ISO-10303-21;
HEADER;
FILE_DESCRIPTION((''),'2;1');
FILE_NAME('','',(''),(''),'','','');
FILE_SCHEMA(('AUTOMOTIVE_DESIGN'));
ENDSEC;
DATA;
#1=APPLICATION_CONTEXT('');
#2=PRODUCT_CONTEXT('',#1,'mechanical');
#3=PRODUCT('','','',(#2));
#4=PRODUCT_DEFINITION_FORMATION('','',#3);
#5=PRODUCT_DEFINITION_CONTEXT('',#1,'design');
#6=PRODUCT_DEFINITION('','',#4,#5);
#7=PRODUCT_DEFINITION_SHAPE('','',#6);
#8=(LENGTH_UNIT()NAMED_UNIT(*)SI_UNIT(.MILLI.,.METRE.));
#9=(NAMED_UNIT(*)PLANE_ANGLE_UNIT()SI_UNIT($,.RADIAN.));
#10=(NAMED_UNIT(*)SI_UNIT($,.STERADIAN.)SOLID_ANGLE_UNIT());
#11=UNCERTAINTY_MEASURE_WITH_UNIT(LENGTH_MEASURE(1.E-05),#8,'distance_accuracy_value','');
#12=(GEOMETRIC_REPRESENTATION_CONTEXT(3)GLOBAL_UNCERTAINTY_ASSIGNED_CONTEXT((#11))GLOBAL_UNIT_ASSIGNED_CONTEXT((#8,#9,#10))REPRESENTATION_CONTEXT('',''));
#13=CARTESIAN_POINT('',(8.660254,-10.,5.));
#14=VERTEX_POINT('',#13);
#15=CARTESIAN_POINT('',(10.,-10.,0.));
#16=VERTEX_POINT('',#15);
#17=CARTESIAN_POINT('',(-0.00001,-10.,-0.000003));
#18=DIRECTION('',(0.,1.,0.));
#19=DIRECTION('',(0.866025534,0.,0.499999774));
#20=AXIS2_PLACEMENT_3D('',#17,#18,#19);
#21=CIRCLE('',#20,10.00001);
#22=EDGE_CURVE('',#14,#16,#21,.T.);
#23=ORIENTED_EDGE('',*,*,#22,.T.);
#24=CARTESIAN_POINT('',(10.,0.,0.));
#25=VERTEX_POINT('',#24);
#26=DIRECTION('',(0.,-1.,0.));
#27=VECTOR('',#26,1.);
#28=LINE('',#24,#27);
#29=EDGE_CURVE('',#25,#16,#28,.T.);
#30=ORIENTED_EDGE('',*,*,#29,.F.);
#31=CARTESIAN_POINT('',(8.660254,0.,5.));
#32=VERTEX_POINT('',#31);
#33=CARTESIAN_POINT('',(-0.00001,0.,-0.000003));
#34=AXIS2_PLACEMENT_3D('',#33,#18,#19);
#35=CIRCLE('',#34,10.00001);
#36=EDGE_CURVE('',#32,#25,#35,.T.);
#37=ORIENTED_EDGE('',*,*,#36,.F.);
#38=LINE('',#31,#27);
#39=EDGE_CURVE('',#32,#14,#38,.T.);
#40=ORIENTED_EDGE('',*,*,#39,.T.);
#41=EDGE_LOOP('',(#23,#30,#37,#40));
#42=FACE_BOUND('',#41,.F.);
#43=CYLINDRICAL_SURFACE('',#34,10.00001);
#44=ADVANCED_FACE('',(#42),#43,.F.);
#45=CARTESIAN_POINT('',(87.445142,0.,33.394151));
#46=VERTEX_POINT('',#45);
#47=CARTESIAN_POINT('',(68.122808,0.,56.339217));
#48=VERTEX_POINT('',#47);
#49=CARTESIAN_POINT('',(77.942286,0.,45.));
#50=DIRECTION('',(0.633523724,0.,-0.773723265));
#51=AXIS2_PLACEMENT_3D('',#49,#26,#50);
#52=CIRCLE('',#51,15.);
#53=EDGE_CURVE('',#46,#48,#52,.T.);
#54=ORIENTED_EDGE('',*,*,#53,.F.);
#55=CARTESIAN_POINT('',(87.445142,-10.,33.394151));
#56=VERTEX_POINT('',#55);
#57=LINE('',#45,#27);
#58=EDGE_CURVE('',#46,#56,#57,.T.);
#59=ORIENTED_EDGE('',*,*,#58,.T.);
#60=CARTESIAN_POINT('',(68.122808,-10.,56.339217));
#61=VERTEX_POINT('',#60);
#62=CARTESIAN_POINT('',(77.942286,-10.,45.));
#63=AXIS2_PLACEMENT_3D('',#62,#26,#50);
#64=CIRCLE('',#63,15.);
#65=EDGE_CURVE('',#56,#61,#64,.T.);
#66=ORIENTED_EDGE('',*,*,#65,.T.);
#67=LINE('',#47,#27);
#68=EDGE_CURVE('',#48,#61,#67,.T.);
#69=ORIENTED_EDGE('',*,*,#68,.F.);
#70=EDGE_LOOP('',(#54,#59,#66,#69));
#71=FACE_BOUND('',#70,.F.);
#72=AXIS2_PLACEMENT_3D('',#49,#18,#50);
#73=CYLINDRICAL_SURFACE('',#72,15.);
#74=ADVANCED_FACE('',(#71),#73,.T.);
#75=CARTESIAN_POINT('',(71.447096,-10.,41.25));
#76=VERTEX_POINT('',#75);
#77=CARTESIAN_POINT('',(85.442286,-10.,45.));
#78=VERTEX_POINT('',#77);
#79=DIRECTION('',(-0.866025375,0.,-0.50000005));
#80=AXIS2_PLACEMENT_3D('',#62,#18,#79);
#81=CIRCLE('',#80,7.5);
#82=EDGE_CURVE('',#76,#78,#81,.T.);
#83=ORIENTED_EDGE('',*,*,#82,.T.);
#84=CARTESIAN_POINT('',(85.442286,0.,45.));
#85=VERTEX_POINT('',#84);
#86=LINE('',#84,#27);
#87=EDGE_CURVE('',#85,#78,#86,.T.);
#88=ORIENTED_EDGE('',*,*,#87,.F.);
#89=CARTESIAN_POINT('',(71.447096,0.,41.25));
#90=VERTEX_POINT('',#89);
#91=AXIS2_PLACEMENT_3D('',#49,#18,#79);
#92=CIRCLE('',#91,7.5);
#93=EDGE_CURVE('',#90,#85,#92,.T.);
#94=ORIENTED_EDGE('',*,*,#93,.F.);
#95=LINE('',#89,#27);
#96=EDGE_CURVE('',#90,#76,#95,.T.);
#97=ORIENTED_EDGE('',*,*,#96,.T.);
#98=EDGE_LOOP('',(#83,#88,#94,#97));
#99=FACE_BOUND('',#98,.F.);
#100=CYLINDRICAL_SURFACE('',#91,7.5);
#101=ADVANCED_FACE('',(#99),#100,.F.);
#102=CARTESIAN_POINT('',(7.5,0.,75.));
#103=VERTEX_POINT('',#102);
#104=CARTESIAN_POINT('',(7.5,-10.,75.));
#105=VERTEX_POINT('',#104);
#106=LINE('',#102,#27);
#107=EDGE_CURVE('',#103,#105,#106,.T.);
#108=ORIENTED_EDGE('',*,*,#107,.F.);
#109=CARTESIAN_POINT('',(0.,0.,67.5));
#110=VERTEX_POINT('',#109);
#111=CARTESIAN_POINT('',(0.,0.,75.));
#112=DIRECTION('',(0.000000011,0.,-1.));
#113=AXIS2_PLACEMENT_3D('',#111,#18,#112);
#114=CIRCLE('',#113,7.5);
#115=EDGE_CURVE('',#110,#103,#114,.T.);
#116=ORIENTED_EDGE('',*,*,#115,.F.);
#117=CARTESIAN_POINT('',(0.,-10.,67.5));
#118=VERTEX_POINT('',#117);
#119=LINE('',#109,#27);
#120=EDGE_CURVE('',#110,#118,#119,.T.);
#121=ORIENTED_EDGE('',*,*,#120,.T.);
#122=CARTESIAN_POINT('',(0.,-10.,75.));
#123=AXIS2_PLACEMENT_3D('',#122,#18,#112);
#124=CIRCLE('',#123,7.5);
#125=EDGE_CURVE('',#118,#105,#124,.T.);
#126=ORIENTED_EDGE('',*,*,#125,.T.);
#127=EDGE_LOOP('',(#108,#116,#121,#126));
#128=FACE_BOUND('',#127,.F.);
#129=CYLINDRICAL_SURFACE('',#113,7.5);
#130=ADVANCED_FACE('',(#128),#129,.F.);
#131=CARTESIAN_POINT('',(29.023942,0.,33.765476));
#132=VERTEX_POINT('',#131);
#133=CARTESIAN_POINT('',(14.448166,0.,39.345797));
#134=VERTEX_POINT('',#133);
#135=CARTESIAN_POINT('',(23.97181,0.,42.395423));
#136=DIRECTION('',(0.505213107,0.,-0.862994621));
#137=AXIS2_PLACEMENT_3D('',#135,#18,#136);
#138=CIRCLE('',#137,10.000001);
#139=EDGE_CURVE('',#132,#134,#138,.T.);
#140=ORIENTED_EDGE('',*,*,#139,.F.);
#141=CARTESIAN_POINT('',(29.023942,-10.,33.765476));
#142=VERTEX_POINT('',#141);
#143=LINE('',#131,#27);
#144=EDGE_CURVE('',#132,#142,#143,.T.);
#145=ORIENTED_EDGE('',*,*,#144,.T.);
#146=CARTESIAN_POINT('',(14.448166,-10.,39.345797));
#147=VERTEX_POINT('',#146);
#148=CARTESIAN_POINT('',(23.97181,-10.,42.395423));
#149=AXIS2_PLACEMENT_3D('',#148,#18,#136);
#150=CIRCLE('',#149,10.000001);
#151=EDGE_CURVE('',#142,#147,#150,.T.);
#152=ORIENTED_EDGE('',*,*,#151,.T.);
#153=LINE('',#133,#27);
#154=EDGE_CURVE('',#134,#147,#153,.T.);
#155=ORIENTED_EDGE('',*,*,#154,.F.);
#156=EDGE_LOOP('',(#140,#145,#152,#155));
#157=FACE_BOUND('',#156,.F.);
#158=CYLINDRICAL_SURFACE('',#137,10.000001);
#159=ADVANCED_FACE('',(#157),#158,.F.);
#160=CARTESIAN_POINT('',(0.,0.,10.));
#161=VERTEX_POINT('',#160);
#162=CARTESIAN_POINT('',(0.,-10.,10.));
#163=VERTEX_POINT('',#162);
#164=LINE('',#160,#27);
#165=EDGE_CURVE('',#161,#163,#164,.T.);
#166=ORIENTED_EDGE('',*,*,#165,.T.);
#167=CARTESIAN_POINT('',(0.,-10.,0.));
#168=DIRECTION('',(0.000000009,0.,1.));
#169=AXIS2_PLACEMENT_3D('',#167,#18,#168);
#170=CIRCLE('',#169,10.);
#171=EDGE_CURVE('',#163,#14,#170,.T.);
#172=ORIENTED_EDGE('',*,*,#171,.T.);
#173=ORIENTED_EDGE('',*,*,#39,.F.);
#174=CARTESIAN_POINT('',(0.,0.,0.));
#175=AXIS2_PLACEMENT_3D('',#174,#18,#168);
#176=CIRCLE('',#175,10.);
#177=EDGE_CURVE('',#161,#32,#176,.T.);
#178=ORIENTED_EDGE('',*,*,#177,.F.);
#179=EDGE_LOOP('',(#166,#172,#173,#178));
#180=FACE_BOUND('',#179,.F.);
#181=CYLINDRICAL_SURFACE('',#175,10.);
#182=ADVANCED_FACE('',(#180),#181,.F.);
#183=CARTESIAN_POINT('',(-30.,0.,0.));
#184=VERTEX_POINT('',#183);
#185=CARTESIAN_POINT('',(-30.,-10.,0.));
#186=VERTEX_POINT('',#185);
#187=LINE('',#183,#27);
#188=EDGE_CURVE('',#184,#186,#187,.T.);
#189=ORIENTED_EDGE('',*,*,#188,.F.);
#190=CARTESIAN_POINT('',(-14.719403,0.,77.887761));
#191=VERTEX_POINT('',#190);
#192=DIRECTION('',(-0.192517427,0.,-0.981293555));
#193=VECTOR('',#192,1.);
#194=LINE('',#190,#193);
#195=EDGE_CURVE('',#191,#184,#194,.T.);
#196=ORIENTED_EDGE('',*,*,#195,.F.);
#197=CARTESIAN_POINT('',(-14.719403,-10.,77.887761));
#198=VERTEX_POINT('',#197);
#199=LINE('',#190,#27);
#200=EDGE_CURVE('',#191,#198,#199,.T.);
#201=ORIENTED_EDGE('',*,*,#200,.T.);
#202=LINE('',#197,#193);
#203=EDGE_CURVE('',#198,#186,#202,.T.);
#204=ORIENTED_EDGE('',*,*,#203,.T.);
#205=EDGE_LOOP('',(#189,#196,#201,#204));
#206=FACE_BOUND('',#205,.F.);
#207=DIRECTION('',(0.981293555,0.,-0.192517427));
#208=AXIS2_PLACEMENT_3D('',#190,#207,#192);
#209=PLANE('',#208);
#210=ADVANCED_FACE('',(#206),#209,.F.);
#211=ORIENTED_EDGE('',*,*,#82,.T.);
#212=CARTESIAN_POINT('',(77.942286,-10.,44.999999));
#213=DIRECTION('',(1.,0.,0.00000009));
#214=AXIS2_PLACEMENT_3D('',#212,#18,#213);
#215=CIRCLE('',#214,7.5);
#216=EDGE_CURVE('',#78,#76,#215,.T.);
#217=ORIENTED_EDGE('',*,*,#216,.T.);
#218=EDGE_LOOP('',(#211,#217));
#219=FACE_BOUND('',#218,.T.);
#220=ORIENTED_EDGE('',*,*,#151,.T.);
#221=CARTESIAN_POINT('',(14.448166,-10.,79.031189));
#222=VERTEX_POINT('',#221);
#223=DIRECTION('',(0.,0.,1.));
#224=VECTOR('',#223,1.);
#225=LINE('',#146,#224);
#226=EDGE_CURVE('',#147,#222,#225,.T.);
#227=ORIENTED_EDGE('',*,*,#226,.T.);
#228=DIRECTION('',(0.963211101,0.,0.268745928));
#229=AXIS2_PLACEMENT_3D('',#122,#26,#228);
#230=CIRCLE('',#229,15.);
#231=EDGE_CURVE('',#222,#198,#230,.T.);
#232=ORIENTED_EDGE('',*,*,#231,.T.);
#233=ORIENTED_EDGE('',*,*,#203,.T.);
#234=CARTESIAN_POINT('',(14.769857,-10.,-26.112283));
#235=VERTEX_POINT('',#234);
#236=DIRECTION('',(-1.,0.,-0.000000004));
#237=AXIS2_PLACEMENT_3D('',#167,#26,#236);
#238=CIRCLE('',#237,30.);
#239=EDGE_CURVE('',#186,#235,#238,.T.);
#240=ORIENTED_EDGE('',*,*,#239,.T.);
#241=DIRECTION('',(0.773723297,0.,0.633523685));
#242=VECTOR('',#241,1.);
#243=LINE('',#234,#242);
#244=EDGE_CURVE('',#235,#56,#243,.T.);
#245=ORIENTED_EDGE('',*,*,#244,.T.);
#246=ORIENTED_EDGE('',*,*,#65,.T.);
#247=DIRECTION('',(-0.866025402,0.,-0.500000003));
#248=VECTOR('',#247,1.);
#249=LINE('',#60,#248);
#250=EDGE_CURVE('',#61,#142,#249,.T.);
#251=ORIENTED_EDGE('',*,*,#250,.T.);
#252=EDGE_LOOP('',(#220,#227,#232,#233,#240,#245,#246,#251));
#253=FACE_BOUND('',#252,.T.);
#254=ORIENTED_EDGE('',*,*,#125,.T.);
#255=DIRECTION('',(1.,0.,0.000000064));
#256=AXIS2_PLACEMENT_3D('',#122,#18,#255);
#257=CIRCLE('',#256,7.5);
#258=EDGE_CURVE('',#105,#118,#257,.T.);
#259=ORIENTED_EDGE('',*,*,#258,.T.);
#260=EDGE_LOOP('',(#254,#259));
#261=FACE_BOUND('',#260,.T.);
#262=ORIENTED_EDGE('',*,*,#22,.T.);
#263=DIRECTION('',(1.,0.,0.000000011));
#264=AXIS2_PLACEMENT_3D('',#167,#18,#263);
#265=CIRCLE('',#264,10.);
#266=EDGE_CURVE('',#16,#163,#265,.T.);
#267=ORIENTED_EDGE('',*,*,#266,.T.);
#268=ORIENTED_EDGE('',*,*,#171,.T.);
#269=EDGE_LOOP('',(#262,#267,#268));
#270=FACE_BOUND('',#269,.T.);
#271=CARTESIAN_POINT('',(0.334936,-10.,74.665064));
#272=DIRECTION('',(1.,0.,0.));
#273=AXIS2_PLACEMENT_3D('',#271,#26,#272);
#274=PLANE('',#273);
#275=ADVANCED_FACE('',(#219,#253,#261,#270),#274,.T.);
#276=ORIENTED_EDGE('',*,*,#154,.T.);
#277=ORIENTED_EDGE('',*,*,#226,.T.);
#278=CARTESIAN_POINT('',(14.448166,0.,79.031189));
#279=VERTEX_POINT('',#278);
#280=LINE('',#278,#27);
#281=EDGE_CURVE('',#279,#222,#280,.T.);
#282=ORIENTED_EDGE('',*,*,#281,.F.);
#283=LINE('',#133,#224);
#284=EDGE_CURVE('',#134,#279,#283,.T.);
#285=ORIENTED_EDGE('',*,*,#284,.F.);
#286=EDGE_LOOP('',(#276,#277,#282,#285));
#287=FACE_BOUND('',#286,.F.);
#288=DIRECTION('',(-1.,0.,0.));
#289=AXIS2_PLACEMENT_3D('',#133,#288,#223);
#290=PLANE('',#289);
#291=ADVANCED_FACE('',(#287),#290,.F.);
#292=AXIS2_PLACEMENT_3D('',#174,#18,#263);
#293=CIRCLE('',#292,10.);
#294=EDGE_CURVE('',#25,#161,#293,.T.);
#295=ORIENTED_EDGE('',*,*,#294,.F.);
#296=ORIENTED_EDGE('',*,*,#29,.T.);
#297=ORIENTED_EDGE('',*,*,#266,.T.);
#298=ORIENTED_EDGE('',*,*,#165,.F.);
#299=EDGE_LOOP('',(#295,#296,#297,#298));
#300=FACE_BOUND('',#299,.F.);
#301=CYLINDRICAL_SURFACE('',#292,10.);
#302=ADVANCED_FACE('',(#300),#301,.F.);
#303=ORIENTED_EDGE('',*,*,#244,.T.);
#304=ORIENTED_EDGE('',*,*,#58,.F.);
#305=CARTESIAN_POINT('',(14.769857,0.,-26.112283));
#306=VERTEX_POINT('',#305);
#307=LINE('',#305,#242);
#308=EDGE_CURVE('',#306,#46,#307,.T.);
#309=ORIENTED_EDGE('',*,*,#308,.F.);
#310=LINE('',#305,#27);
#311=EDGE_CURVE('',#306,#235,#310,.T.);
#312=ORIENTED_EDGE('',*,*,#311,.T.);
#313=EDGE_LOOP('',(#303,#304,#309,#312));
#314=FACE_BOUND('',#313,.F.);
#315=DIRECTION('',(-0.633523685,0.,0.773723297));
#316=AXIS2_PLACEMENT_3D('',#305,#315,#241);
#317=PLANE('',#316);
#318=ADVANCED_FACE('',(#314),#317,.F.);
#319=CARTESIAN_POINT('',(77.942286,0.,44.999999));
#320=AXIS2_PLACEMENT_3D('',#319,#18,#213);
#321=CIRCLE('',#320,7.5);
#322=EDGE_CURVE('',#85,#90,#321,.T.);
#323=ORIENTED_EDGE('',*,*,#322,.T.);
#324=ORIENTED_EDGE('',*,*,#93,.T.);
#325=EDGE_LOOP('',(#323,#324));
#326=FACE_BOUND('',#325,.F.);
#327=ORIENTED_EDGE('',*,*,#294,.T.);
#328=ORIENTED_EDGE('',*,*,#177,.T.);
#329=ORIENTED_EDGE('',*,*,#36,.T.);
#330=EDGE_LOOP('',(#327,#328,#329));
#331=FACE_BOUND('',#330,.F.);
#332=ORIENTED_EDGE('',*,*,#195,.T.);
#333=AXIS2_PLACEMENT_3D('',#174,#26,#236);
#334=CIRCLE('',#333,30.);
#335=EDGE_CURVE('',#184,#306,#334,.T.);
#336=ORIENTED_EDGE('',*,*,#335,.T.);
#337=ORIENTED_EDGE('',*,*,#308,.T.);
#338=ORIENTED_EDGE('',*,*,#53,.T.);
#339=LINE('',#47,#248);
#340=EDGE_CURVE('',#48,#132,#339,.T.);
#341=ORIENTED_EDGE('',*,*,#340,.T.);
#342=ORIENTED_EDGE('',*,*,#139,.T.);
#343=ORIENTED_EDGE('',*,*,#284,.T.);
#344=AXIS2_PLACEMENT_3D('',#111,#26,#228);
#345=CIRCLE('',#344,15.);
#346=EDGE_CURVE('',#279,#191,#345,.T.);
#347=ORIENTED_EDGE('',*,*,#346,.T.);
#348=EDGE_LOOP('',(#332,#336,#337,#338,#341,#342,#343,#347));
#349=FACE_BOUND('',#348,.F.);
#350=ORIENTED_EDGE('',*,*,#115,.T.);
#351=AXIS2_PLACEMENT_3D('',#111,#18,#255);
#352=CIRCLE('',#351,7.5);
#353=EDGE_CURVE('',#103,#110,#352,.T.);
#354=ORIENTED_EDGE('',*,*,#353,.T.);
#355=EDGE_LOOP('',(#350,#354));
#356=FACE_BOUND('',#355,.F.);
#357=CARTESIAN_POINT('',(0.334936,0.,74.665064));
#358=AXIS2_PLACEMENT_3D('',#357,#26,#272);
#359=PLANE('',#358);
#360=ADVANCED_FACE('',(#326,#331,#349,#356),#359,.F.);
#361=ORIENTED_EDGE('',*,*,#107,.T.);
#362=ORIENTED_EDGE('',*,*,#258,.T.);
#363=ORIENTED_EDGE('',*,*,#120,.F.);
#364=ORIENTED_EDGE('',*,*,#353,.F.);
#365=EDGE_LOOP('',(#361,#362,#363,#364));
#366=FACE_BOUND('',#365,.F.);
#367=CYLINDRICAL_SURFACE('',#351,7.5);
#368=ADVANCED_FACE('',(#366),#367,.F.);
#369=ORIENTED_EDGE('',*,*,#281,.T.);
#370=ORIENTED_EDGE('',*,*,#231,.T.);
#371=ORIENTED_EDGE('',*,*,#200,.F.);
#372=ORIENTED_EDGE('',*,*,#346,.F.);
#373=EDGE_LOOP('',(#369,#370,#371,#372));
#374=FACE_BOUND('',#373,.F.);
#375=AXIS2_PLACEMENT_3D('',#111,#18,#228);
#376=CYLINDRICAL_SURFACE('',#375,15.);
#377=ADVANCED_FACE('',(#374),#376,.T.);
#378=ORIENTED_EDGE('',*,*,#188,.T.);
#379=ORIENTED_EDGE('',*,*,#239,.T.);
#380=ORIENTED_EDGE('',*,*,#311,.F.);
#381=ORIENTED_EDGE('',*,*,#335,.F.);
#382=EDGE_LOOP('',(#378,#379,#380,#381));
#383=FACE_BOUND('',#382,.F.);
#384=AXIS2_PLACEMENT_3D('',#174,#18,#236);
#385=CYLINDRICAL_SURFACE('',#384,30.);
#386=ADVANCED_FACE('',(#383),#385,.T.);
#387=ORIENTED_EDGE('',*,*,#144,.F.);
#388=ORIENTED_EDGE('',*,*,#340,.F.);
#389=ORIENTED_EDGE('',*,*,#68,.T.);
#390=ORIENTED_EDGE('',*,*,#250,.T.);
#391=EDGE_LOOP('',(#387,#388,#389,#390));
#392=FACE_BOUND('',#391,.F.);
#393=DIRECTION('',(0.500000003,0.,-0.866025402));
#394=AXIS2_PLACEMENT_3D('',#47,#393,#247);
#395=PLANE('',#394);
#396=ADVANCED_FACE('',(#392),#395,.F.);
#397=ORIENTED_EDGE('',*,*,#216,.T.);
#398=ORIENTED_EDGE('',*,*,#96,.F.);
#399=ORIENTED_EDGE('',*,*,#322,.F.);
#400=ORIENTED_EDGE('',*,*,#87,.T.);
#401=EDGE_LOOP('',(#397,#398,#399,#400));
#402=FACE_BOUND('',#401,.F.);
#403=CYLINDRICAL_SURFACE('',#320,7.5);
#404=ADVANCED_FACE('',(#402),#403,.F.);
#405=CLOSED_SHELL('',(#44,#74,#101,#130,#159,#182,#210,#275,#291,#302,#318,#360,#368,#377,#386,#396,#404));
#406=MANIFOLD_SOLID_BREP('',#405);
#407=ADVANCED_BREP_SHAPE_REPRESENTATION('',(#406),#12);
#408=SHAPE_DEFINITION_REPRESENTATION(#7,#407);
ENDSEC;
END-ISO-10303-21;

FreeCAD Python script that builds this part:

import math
import FreeCAD as App
import Part
import Sketcher

V = App.Vector
Q = App.Units.Quantity

doc = App.newDocument("Part")
body = doc.addObject("PartDesign::Body", "Body")

sketch1 = doc.addObject("Sketcher::SketchObject", "Sketch")
body.addObject(sketch1)
sketch1.AttachmentSupport = (doc.XZ_Plane, [""])
sketch1.MapMode = "FlatFace"
sketch1.addGeometry([
    Part.LineSegment(V(-14.719403, 77.887761, 0), V(-30, 0, 0)),
    Part.ArcOfCircle(Part.Circle(V(0, 0, 0), V(0, 0, 1), 30), math.radians(-180), math.radians(-60.506253)),
    Part.LineSegment(V(14.769857, -26.112283, 0), V(87.445142, 33.394151, 0)),
    Part.ArcOfCircle(Part.Circle(V(77.942286, 45, 0), V(0, 0, 1), 15), math.radians(-50.689422), math.radians(130.891743)),
    Part.LineSegment(V(68.122808, 56.339217, 0), V(29.023942, 33.765476, 0)),
    Part.ArcOfCircle(Part.Circle(V(23.97181, 42.395423, 0), V(0, 0, 1), 10.000001), math.radians(-162.244087), math.radians(-59.6545)),
    Part.LineSegment(V(14.448166, 39.345797, 0), V(14.448166, 79.031189, 0)),
    Part.ArcOfCircle(Part.Circle(V(0, 75, 0), V(0, 0, 1), 15), math.radians(15.589656), math.radians(168.900267)),
    Part.ArcOfCircle(Part.Circle(V(0, 0, 0), V(0, 0, 1), 10), math.radians(30), math.radians(89.999999)),
    Part.ArcOfCircle(Part.Circle(V(-0.00001, -0.000003, 0), V(0, 0, 1), 10.00001), math.radians(0.000016), math.radians(29.999985)),
    Part.ArcOfCircle(Part.Circle(V(0, 0, 0), V(0, 0, 1), 10), math.radians(89.999999), math.radians(360.000001)),
    Part.ArcOfCircle(Part.Circle(V(0, 75, 0), V(0, 0, 1), 7.5), math.radians(-0.000001), math.radians(270.000001)),
    Part.ArcOfCircle(Part.Circle(V(0, 75, 0), V(0, 0, 1), 7.5), math.radians(-90.000004), math.radians(0.000004)),
    Part.ArcOfCircle(Part.Circle(V(77.942286, 45, 0), V(0, 0, 1), 7.5), math.radians(-0.000002), math.radians(210.000003)),
    Part.ArcOfCircle(Part.Circle(V(77.942286, 44.999999, 0), V(0, 0, 1), 7.5), math.radians(-150.000004), math.radians(0.000005)),
], False)
sketch1.addConstraint([
    Sketcher.Constraint("Coincident", 0, 2, 1, 1),
    Sketcher.Constraint("Coincident", 1, 2, 2, 1),
    Sketcher.Constraint("Tangent", 2, 2, 3, 1),
    Sketcher.Constraint("Coincident", 3, 2, 4, 1),
    Sketcher.Constraint("Coincident", 4, 2, 5, 2),
    Sketcher.Constraint("Coincident", 5, 1, 6, 1),
    Sketcher.Constraint("Coincident", 6, 2, 7, 1),
    Sketcher.Constraint("Tangent", 7, 2, 0, 1),
    Sketcher.Constraint("Tangent", 8, 1, 9, 2),
    Sketcher.Constraint("Tangent", 9, 1, 10, 2),
    Sketcher.Constraint("Tangent", 10, 1, 8, 2),
    Sketcher.Constraint("Tangent", 11, 1, 12, 2),
    Sketcher.Constraint("Coincident", 12, 1, 11, 2),
    Sketcher.Constraint("Tangent", 13, 1, 14, 2),
    Sketcher.Constraint("Coincident", 14, 1, 13, 2),
    Sketcher.Constraint("Vertical", 6),
    Sketcher.Constraint("Coincident", 1, 3, -1, 1),
    Sketcher.Constraint("Coincident", 8, 3, -1, 1),
    Sketcher.Constraint("Coincident", 11, 3, 7, 3),
    Sketcher.Constraint("Coincident", 13, 3, 3, 3),
    Sketcher.Constraint("Equal", 3, 7),
    Sketcher.Constraint("Equal", 5, 8),
    Sketcher.Constraint("Equal", 12, 13),
    Sketcher.Constraint("PointOnObject", 7, 3, -2),
    Sketcher.Constraint("PointOnObject", 0, 2, -1),
    Sketcher.Constraint("PointOnObject", 9, 1, -1),
    Sketcher.Constraint("PointOnObject", 10, 1, -2),
    Sketcher.Constraint("PointOnObject", 12, 1, -2),
    Sketcher.Constraint("Horizontal", 12, 3, 11, 1),
    Sketcher.Constraint("Horizontal", 14, 3, 13, 1),
    Sketcher.Constraint("Radius", 1, 30.0),
    Sketcher.Constraint("Radius", 3, 15.0),
    Sketcher.Constraint("Radius", 5, 10.000001),
    Sketcher.Constraint("Radius", 11, 7.5),
    Sketcher.Constraint("Angle", 4, Q("-150 deg")),
    Sketcher.Constraint("DistanceY", -1, 1, 3, 3, 45.0),
    Sketcher.Constraint("DistanceY", -1, 1, 7, 3, 75.0),
    Sketcher.Constraint("DistanceY", -1, 1, 8, 1, 5.0),
    Sketcher.Constraint("DistanceY", -1, 1, 14, 1, 41.25),
    Sketcher.Constraint("Distance", 4, 45.147482),
    Sketcher.Constraint("DistanceY", 6, 1, 6, 2, 39.685392),
    Sketcher.Constraint("DistanceX", -1, 1, 5, 3, 23.97181),
    Sketcher.Constraint("DistanceY", -1, 1, 2, 2, 33.394151),
    Sketcher.Constraint("DistanceX", -1, 1, 3, 2, 68.122808),
    Sketcher.Constraint("DistanceY", -1, 1, 6, 2, 79.031189),
])
pad1 = doc.addObject("PartDesign::Pad", "Pad")
body.addObject(pad1)
pad1.Profile = sketch1
pad1.Length = 10

doc.recompute()
